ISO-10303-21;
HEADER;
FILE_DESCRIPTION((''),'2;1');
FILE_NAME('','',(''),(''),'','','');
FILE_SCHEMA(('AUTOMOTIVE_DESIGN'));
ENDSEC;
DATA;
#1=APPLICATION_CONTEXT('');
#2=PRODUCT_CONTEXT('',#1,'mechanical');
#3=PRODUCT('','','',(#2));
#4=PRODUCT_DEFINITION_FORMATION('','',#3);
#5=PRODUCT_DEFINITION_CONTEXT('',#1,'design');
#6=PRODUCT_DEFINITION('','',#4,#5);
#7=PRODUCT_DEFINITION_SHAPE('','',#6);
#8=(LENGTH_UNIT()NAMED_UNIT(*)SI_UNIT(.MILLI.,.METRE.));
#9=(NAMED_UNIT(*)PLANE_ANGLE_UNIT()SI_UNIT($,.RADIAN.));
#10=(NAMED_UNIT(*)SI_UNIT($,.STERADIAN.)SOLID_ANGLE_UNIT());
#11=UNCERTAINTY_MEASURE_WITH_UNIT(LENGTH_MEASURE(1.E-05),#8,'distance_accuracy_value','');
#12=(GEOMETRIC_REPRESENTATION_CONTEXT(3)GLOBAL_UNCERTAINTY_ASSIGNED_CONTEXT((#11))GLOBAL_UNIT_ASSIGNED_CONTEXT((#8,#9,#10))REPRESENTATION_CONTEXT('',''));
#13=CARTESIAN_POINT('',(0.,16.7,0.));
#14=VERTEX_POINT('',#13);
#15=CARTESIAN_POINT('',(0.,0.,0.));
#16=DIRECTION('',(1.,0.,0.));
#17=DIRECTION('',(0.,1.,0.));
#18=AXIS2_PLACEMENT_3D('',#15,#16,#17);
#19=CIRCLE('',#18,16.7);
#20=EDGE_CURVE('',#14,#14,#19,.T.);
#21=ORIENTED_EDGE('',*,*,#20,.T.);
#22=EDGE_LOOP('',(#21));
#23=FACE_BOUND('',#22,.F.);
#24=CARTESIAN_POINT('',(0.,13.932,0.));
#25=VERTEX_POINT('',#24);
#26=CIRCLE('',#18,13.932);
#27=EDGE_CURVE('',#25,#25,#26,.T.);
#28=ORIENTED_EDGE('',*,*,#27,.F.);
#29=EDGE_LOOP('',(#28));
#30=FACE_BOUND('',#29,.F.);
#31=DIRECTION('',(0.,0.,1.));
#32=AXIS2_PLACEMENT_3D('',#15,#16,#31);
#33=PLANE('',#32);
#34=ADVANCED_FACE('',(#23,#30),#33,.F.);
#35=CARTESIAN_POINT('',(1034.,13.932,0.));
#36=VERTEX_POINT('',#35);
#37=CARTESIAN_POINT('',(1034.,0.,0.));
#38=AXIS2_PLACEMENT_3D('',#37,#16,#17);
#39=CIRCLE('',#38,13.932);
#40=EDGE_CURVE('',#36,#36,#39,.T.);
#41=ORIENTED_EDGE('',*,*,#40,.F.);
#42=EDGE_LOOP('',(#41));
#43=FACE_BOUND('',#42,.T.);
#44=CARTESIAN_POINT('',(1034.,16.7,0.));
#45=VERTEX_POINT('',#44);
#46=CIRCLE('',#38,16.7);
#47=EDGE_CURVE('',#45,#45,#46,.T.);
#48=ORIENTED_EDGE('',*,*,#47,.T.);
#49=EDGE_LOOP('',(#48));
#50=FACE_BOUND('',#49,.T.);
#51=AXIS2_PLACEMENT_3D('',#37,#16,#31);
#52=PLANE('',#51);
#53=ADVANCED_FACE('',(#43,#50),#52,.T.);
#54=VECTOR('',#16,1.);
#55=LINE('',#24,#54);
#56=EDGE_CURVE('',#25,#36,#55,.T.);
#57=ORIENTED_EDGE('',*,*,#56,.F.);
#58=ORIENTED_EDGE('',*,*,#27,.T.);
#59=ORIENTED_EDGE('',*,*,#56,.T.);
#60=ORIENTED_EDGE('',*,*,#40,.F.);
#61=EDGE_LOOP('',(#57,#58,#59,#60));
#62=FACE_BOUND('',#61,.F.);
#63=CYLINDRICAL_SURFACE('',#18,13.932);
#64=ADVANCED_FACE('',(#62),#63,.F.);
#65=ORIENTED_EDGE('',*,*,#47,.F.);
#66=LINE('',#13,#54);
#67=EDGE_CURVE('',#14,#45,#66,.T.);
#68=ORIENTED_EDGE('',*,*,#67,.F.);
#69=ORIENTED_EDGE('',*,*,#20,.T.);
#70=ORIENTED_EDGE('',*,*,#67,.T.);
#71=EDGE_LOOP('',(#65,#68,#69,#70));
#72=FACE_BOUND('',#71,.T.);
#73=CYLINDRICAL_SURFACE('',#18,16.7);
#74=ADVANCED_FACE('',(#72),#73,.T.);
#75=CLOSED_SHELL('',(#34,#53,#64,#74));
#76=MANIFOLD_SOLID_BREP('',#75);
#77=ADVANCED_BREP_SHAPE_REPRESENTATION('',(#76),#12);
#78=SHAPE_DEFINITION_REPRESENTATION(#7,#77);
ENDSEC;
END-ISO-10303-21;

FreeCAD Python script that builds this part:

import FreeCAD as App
import Part
import Sketcher
Q = App.Units.Quantity

doc = App.newDocument("Part")
params = doc.addObject("Spreadsheet::Sheet", "Params")
for row, (alias, value) in enumerate([
    ("sketch1_diameter", "33.4 mm"),
    ("sketch2_width", "1034 mm"),
], start=1):
    params.set(f"A{row}", alias)
    params.set(f"B{row}", "=" + value)
    params.setAlias(f"B{row}", alias)

body = doc.addObject("PartDesign::Body", "Body")

# Sketch on YZ plane
sketch1 = body.newObject("Sketcher::SketchObject", "Sketch")
sketch1.AttachmentSupport = (doc.getObject("YZ_Plane"), [""])
sketch1.MapMode = "FlatFace"
sketch1.addGeometry(Part.Circle(App.Vector(0, 0, 0), App.Vector(0, 0, 1), 17), False)
sketch1.addGeometry(Part.Circle(App.Vector(0, 0, 0), App.Vector(0, 0, 1), 14), False)
sketch1.addConstraint(Sketcher.Constraint("Coincident", 0, 3, -1, 1))
sketch1.addConstraint(Sketcher.Constraint("Coincident", 1, 3, -1, 1))
sketch1.addConstraint(Sketcher.Constraint("Diameter", 0, Q("33.4 mm")))
sketch1.addConstraint(Sketcher.Constraint("Diameter", 1, Q("27.864 mm")))
sketch1.setExpression("Constraints[2]", "Params.sketch1_diameter")

# Sketch on XY plane
sketch2 = body.newObject("Sketcher::SketchObject", "Sketch001")
sketch2.AttachmentSupport = (doc.getObject("XY_Plane"), [""])
sketch2.MapMode = "FlatFace"
sketch2.addGeometry(Part.LineSegment(App.Vector(0, 0, 0), App.Vector(1034, 0, 0)), False)
sketch2.addConstraint(Sketcher.Constraint("Horizontal", 0))
sketch2.addConstraint(Sketcher.Constraint("Coincident", 0, 1, -1, 1))
sketch2.addConstraint(Sketcher.Constraint("DistanceX", 0, 1, 0, 2, Q("1034 mm")))
sketch2.setExpression("Constraints[2]", "Params.sketch2_width")
doc.recompute()

additivepipe = body.newObject("PartDesign::AdditivePipe", "AdditivePipe")
additivepipe.Profile = sketch1
additivepipe.Spine = (sketch2, ["Edge1"])

doc.recompute()
